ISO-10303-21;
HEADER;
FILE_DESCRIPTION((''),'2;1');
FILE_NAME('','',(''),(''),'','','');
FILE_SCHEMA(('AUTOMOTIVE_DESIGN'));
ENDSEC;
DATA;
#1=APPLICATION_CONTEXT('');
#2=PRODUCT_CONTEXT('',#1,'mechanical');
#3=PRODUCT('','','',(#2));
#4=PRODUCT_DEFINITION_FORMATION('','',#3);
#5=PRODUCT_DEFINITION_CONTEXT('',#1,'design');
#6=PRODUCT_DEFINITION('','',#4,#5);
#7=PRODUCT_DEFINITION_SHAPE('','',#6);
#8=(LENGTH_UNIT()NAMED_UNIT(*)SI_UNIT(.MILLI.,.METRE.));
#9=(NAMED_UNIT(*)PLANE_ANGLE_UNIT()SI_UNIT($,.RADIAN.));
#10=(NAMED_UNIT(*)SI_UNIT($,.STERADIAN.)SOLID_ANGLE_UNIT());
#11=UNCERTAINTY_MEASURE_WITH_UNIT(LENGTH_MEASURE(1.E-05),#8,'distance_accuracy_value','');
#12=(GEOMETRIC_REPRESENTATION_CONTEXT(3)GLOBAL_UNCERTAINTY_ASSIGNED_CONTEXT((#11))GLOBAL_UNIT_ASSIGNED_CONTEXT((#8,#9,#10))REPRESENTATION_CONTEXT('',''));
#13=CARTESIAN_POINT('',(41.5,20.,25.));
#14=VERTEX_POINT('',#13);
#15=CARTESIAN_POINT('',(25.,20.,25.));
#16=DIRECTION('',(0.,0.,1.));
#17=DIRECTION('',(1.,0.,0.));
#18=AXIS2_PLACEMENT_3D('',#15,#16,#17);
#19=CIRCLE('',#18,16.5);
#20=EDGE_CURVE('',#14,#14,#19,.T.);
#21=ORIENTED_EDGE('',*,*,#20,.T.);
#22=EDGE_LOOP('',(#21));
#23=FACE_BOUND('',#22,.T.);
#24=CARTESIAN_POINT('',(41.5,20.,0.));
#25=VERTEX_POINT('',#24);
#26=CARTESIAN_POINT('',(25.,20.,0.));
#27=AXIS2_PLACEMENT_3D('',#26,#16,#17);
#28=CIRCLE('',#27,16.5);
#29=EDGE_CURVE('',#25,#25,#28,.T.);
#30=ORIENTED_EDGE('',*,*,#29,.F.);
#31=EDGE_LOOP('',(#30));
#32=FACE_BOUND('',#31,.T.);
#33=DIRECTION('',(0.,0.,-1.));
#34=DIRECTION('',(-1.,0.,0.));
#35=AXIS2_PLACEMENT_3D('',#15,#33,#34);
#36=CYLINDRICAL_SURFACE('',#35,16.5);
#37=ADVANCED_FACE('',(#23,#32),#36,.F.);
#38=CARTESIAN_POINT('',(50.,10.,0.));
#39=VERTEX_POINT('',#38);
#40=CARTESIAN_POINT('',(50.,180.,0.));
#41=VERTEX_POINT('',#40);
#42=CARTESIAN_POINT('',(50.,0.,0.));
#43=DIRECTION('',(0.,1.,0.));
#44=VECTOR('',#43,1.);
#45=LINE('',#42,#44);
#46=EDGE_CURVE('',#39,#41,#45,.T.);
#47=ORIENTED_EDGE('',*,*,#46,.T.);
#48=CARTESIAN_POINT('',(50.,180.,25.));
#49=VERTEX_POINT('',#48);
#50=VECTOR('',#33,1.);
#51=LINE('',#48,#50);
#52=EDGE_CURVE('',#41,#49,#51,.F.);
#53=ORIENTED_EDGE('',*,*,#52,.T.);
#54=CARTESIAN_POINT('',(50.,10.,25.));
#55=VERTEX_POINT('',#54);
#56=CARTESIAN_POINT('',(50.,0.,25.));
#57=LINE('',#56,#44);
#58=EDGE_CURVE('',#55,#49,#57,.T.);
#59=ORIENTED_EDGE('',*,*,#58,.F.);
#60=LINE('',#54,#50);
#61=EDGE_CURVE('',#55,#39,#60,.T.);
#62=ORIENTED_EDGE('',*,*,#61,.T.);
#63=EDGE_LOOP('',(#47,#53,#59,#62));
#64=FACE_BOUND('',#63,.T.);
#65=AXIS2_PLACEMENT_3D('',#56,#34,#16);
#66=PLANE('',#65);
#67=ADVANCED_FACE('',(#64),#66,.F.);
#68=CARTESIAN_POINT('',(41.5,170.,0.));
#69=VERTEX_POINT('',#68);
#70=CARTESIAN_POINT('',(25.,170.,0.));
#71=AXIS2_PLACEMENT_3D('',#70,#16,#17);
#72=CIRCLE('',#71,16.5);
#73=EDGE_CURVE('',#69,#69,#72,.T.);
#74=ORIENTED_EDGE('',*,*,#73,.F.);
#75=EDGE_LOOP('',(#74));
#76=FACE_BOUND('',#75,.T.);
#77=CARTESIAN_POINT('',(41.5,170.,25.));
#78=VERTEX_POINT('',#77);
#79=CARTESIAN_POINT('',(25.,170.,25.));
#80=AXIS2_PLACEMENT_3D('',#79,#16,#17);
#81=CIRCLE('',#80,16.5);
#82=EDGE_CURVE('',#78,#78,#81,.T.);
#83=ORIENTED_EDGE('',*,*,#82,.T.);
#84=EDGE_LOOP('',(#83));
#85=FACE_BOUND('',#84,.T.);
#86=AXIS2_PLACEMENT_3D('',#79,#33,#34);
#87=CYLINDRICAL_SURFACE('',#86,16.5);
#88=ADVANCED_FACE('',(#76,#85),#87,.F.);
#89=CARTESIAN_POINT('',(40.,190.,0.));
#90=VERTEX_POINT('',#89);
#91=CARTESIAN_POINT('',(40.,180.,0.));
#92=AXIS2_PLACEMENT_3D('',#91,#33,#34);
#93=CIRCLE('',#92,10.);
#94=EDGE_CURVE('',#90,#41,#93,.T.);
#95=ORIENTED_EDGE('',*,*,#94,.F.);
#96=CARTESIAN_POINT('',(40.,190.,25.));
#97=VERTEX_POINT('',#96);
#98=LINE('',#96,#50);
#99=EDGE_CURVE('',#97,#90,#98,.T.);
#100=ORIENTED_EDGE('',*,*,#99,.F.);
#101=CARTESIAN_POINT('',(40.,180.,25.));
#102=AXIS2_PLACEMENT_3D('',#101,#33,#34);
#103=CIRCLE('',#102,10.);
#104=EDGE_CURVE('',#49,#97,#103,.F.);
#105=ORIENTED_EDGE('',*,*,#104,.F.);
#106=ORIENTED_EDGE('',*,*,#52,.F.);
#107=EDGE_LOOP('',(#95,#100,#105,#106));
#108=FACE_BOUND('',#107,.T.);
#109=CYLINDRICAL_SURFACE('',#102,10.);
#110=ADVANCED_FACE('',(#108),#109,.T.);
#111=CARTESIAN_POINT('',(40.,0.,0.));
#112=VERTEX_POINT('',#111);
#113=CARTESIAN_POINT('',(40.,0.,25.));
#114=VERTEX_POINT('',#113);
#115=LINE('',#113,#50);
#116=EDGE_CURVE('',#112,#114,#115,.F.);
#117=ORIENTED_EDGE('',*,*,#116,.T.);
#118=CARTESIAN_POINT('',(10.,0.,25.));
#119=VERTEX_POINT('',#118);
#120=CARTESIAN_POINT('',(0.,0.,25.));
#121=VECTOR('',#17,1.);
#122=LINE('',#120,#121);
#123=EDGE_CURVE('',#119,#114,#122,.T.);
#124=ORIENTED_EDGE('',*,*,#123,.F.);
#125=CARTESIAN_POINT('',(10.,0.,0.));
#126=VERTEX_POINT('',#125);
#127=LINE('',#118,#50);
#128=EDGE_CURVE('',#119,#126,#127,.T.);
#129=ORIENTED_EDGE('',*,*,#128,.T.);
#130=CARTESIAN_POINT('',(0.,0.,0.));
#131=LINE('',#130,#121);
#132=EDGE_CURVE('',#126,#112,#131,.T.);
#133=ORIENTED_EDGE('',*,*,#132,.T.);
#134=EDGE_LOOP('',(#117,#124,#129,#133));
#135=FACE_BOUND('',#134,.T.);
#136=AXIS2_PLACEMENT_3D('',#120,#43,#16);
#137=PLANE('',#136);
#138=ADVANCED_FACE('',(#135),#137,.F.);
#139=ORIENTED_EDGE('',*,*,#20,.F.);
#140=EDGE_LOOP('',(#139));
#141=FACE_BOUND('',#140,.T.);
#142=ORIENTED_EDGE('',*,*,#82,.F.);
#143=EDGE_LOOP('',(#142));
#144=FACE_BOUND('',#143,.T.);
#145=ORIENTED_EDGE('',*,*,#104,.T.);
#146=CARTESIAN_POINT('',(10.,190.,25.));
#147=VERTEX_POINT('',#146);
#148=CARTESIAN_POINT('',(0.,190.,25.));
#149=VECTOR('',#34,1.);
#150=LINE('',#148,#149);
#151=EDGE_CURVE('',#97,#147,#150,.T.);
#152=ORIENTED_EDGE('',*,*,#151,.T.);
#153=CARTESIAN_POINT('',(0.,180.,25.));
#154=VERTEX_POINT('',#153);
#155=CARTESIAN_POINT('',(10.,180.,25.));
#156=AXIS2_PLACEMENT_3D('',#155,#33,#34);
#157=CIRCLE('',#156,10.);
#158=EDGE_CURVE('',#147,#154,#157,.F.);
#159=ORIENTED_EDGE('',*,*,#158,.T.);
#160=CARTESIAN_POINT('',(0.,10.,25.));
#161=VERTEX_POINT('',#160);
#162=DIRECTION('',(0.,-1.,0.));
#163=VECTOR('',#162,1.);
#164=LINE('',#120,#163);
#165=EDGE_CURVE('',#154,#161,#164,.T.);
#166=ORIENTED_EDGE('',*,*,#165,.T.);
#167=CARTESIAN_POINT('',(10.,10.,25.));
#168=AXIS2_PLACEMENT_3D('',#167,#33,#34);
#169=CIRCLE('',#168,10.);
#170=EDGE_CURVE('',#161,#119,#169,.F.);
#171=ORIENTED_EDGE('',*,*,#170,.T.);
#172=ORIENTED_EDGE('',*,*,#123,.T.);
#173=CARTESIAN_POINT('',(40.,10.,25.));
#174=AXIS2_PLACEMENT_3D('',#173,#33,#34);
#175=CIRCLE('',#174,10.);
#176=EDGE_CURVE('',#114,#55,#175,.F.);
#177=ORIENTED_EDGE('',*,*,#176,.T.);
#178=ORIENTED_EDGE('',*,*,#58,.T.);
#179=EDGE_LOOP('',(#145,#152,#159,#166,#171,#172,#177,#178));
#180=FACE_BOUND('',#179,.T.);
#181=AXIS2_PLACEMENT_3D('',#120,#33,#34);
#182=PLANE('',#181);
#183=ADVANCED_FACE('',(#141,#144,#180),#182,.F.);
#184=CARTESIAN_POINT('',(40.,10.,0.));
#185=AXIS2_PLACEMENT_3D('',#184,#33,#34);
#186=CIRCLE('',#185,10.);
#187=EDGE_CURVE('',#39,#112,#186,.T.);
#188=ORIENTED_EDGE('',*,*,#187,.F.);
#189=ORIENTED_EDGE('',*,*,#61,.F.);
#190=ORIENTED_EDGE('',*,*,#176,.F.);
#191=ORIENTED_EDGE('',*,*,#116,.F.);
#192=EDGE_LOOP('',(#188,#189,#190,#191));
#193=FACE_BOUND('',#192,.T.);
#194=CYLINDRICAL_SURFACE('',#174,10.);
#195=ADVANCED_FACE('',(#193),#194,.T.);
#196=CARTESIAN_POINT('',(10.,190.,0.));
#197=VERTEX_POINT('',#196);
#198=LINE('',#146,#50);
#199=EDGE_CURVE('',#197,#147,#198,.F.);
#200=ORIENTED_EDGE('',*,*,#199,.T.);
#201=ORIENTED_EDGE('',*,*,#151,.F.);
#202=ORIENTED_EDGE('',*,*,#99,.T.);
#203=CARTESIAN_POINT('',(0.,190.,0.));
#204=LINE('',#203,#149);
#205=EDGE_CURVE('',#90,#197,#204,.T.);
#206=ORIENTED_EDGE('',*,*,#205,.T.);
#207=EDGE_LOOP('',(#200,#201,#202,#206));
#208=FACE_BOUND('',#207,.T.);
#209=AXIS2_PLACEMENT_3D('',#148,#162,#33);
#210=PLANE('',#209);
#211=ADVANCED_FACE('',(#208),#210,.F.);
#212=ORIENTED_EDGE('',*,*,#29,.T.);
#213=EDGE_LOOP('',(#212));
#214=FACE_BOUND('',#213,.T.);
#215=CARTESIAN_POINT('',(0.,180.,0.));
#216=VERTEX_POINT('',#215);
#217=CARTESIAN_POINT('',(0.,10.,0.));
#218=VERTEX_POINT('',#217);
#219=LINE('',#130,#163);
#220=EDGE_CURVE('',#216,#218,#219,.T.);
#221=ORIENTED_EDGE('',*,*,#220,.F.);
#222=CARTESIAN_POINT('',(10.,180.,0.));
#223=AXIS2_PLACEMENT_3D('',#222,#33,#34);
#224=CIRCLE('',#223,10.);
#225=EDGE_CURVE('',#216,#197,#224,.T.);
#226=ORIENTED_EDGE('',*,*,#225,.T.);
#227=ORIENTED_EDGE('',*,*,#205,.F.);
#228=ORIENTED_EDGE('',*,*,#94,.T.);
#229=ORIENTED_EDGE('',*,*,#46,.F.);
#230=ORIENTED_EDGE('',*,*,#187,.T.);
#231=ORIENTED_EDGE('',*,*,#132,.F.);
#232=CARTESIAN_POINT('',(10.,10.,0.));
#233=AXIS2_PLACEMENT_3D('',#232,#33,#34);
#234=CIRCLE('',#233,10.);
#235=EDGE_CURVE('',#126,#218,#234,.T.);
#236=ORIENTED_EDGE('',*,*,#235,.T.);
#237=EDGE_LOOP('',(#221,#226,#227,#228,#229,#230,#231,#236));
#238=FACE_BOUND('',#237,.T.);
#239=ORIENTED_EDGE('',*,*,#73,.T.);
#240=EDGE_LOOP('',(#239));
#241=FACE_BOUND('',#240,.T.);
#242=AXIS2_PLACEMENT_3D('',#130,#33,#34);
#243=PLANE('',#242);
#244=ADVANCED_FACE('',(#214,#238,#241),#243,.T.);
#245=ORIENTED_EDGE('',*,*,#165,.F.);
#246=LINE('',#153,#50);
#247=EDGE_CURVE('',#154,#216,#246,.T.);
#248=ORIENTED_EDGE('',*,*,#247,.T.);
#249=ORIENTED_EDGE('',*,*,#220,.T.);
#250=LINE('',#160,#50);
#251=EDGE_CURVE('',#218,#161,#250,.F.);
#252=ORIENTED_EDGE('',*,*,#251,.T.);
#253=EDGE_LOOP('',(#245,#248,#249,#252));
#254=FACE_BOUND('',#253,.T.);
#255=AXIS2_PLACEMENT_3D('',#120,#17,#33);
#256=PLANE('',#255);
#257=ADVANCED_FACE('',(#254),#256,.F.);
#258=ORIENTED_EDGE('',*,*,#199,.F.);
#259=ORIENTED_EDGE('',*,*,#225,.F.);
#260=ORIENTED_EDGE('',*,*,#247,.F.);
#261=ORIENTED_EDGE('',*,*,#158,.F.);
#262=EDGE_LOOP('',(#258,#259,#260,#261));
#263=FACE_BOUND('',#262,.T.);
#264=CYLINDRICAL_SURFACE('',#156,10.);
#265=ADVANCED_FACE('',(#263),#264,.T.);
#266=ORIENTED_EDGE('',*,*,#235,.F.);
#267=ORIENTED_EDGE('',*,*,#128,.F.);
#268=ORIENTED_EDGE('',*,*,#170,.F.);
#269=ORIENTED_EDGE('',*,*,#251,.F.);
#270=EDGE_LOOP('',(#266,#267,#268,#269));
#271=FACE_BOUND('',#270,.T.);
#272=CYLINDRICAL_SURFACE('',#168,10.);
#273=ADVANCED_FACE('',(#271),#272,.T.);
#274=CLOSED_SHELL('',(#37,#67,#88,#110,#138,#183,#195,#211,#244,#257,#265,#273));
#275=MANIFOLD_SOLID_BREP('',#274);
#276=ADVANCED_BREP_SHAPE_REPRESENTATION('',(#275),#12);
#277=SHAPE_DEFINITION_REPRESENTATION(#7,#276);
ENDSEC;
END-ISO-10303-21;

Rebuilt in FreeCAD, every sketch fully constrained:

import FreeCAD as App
import Part
import Sketcher

V = App.Vector


def edges_at(feature, points):
    """Names of the edges that pass closest to the given points."""
    edges = feature.Shape.Edges
    near = lambda p: min(range(len(edges)), key=lambda i: edges[i].distToShape(Part.Vertex(*p))[0])
    return sorted({f"Edge{near(p) + 1}" for p in points})

doc = App.newDocument("Part")
params = doc.addObject("Spreadsheet::Sheet", "Params")
for row, (alias, value) in enumerate([
    ("sketch1_diameter", "33 mm"),
    ("sketch1_width", "50 mm"),
    ("sketch1_height", "190 mm"),
    ("pad1_length", "25 mm"),
    ("fillet_radius", "10 mm"),
], start=1):
    params.set(f"A{row}", alias)
    params.set(f"B{row}", "=" + value)
    params.setAlias(f"B{row}", alias)

body = doc.addObject("PartDesign::Body", "Body")

# Sketch on XY plane
sketch1 = body.newObject("Sketcher::SketchObject", "Sketch")
sketch1.AttachmentSupport = (doc.getObject("XY_Plane"), [""])
sketch1.MapMode = "FlatFace"
sketch1.addGeometry(Part.LineSegment(V(0, 190, 0), V(0, 0, 0)), False)
sketch1.addGeometry(Part.LineSegment(V(0, 0, 0), V(50, 0, 0)), False)
sketch1.addGeometry(Part.LineSegment(V(50, 0, 0), V(50, 190, 0)), False)
sketch1.addGeometry(Part.LineSegment(V(50, 190, 0), V(0, 190, 0)), False)
sketch1.addGeometry(Part.Circle(V(25, 20, 0), V(0, 0, 1), 16), False)
sketch1.addGeometry(Part.Circle(V(25, 170, 0), V(0, 0, 1), 16), False)
sketch1.addConstraint(Sketcher.Constraint("Coincident", 0, 2, 1, 1))
sketch1.addConstraint(Sketcher.Constraint("Coincident", 1, 2, 2, 1))
sketch1.addConstraint(Sketcher.Constraint("Coincident", 2, 2, 3, 1))
sketch1.addConstraint(Sketcher.Constraint("Coincident", 3, 2, 0, 1))
sketch1.addConstraint(Sketcher.Constraint("Vertical", 0))
sketch1.addConstraint(Sketcher.Constraint("Horizontal", 1))
sketch1.addConstraint(Sketcher.Constraint("Vertical", 2))
sketch1.addConstraint(Sketcher.Constraint("Horizontal", 3))
sketch1.addConstraint(Sketcher.Constraint("Coincident", 0, 2, -1, 1))
sketch1.addConstraint(Sketcher.Constraint("Equal", 4, 5))
sketch1.addConstraint(Sketcher.Constraint("Vertical", 4, 3, 5, 3))
sketch1.addConstraint(Sketcher.Constraint("Diameter", 4, 33.0))
sketch1.addConstraint(Sketcher.Constraint("DistanceX", 1, 1, 1, 2, 50.0))
sketch1.addConstraint(Sketcher.Constraint("DistanceY", 0, 2, 0, 1, 190.0))
sketch1.addConstraint(Sketcher.Constraint("DistanceX", -1, 1, 4, 3, 25.0))
sketch1.addConstraint(Sketcher.Constraint("DistanceY", -1, 1, 4, 3, 20.0))
sketch1.addConstraint(Sketcher.Constraint("DistanceY", -1, 1, 5, 3, 170.0))
sketch1.setExpression("Constraints[11]", "Params.sketch1_diameter")
sketch1.setExpression("Constraints[12]", "Params.sketch1_width")
sketch1.setExpression("Constraints[13]", "Params.sketch1_height")
pad1 = body.newObject("PartDesign::Pad", "Pad")
pad1.Profile = sketch1
pad1.setExpression("Length", "Params.pad1_length")
doc.recompute()

fillet = body.newObject("PartDesign::Fillet", "Fillet")
fillet.Base = (pad1, edges_at(pad1, [
    (0, 190, 12.5),
    (50, 190, 12.5),
    (50, 0, 12.5),
    (0, 0, 12.5),
]))
fillet.setExpression("Radius", "Params.fillet_radius")

doc.recompute()
